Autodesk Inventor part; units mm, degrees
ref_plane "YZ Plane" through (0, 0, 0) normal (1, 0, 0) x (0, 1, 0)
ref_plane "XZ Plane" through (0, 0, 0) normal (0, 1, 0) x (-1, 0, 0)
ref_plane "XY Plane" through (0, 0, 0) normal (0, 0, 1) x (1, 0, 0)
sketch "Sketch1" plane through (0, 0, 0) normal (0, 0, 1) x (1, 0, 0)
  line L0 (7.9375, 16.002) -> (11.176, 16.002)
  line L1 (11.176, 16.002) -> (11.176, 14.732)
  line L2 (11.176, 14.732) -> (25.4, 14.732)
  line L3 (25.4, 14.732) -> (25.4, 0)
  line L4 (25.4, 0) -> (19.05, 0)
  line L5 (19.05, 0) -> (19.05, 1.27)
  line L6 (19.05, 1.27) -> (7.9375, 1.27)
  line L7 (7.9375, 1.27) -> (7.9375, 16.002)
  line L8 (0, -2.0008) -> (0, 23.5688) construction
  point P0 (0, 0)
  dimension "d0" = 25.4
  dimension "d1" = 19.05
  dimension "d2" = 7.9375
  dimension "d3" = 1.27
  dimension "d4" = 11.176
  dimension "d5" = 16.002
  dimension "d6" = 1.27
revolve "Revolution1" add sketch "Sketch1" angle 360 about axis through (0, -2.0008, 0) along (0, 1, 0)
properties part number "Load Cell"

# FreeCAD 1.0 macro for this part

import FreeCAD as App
import Part
import Sketcher
from FreeCAD import Vector
Q = App.Units.Quantity

doc = App.newDocument("Part")
body = doc.addObject("PartDesign::Body", "Body")

# Sketch on XY plane
sketch1 = doc.addObject("Sketcher::SketchObject", "Sketch")
body.addObject(sketch1)
sketch1.AttachmentSupport = (doc.XY_Plane, [""])
sketch1.MapMode = "FlatFace"
sketch1.addGeometry([
    Part.LineSegment(Vector(11.176, 16.002, 0), Vector(7.9375, 16.002, 0)),  # 0
    Part.LineSegment(Vector(7.9375, 16.002, 0), Vector(7.9375, 1.27, 0)),  # 1
    Part.LineSegment(Vector(7.9375, 1.27, 0), Vector(19.05, 1.27, 0)),  # 2
    Part.LineSegment(Vector(19.05, 1.27, 0), Vector(19.05, 0, 0)),  # 3
    Part.LineSegment(Vector(19.05, 0, 0), Vector(25.4, 0, 0)),  # 4
    Part.LineSegment(Vector(25.4, 0, 0), Vector(25.4, 14.732, 0)),  # 5
    Part.LineSegment(Vector(25.4, 14.732, 0), Vector(11.176, 14.732, 0)),  # 6
    Part.LineSegment(Vector(11.176, 14.732, 0), Vector(11.176, 16.002, 0)),  # 7
], False)
sketch1.addConstraint([
    Sketcher.Constraint("Coincident", 0, 2, 1, 1),
    Sketcher.Constraint("Coincident", 1, 2, 2, 1),
    Sketcher.Constraint("Coincident", 2, 2, 3, 1),
    Sketcher.Constraint("Coincident", 3, 2, 4, 1),
    Sketcher.Constraint("Coincident", 4, 2, 5, 1),
    Sketcher.Constraint("Coincident", 5, 2, 6, 1),
    Sketcher.Constraint("Coincident", 6, 2, 7, 1),
    Sketcher.Constraint("Coincident", 7, 2, 0, 1),
    Sketcher.Constraint("Horizontal", 0),
    Sketcher.Constraint("Vertical", 1),
    Sketcher.Constraint("Horizontal", 2),
    Sketcher.Constraint("Vertical", 3),
    Sketcher.Constraint("Horizontal", 4),
    Sketcher.Constraint("Vertical", 5),
    Sketcher.Constraint("Horizontal", 6),
    Sketcher.Constraint("Vertical", 7),
    Sketcher.Constraint("PointOnObject", 3, 2, -1),
    Sketcher.Constraint("Equal", 1, 5),
    Sketcher.Constraint("DistanceX", -1, 1, 4, 2, Q("1 in")),
    Sketcher.Constraint("DistanceY", 3, 2, 3, 1, Q("0.05 in")),
    Sketcher.Constraint("DistanceY", -1, 1, 0, 2, Q("0.63 in")),
    Sketcher.Constraint("DistanceX", -1, 1, 2, 2, Q("0.75 in")),
    Sketcher.Constraint("DistanceX", -1, 1, 6, 2, Q("0.44 in")),
    Sketcher.Constraint("DistanceX", -1, 1, 0, 2, Q("0.3125 in")),
])
revolution = doc.addObject("PartDesign::Revolution", "Revolution")
body.addObject(revolution)
revolution.Profile = sketch1
revolution.ReferenceAxis = (sketch1, ["V_Axis"])
revolution.Angle = 360

doc.recompute()
